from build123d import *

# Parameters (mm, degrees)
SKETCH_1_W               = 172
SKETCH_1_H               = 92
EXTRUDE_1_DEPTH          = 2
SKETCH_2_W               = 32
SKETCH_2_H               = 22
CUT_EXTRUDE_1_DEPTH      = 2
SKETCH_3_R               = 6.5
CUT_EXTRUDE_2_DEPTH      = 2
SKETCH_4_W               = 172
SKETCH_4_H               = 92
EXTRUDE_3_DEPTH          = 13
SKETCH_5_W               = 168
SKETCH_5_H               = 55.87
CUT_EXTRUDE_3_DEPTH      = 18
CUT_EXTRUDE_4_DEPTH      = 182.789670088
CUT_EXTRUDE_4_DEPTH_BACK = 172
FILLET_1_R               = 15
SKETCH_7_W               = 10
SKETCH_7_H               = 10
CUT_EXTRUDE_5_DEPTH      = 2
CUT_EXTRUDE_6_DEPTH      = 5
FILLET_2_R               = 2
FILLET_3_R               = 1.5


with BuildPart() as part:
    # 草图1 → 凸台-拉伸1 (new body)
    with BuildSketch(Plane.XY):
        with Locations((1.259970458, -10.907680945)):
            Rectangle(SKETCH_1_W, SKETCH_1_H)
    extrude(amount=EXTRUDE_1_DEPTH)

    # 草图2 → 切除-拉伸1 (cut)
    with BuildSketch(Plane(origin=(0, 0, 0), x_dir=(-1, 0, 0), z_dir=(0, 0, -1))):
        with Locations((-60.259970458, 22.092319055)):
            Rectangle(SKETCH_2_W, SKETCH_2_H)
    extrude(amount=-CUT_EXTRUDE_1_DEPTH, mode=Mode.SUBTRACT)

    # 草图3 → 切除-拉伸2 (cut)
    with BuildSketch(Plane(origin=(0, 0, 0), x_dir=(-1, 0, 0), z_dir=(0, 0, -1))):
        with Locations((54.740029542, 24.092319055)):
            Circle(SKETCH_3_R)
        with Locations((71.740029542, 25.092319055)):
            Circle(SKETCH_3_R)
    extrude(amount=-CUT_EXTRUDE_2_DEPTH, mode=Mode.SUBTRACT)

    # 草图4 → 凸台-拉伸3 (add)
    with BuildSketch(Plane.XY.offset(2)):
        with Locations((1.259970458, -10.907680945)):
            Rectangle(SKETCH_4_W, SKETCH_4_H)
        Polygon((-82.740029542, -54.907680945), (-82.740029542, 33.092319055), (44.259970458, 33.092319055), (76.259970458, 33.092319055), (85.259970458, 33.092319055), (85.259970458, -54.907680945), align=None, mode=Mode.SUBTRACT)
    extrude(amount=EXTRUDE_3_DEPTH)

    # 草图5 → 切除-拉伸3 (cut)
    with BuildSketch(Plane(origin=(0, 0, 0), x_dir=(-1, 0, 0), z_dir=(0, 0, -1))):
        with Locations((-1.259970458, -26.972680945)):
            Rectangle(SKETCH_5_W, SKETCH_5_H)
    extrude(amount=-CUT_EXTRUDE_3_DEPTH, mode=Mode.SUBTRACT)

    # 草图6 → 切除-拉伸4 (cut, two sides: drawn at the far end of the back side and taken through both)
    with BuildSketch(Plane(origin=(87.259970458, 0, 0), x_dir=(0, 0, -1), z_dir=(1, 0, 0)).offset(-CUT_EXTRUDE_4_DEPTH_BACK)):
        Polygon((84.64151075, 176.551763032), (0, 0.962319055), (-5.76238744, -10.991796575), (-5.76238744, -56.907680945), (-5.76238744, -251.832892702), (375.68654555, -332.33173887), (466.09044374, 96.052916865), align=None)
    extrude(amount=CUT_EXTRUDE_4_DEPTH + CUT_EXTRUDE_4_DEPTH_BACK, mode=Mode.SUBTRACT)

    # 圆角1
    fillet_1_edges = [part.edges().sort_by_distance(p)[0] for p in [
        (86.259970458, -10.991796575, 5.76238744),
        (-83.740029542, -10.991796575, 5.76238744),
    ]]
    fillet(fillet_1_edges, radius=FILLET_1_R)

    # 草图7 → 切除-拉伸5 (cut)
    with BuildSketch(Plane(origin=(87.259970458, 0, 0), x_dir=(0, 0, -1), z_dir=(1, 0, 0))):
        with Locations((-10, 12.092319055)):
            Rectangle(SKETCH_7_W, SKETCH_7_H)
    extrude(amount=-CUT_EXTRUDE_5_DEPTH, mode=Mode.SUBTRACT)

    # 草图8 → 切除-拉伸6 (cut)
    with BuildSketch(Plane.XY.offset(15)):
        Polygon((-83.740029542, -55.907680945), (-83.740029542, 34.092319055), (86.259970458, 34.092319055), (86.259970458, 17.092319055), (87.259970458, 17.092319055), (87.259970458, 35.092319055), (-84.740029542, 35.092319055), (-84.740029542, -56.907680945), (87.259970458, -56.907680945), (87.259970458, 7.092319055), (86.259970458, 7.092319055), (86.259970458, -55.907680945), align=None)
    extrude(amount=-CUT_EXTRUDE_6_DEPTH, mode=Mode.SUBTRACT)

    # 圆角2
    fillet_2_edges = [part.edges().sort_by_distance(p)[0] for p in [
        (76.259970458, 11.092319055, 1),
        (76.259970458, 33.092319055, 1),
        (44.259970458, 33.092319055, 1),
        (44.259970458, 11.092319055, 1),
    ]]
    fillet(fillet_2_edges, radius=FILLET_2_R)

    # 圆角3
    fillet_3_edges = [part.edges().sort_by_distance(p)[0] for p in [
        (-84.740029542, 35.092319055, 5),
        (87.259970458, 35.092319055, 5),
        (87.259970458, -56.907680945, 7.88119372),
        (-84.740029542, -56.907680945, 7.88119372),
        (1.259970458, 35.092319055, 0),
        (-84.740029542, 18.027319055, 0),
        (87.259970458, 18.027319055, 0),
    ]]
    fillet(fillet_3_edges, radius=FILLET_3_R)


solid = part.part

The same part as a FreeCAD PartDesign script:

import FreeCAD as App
import Part
import Sketcher

V = App.Vector


def edges_at(feature, points):
    """Names of the edges that pass closest to the given points."""
    edges = feature.Shape.Edges
    near = lambda p: min(range(len(edges)), key=lambda i: edges[i].distToShape(Part.Vertex(*p))[0])
    return sorted({f"Edge{near(p) + 1}" for p in points})

doc = App.newDocument("Part")
params = doc.addObject("Spreadsheet::Sheet", "Params")
for row, (alias, value) in enumerate([
    ("sketch1_width", "172 mm"),
    ("sketch1_height", "92 mm"),
    ("pad1_length", "2 mm"),
    ("sketch2_width", "32 mm"),
    ("sketch2_height", "22 mm"),
    ("pocket1_length", "2 mm"),
    ("sketch3_diameter", "13 mm"),
    ("pocket2_length", "2 mm"),
    ("sketch4_width", "172 mm"),
    ("sketch4_width2", "168 mm"),
    ("sketch4_height", "92 mm"),
    ("sketch4_height2", "88 mm"),
    ("pad2_length", "13 mm"),
    ("sketch5_width", "168 mm"),
    ("sketch5_height", "55.87 mm"),
    ("pocket3_length", "18 mm"),
    ("fillet_radius", "15 mm"),
    ("sketch7_width", "10 mm"),
    ("pocket5_length", "2 mm"),
    ("sketch8_width", "170 mm"),
    ("sketch8_width2", "1 mm"),
    ("sketch8_width3", "172 mm"),
    ("sketch8_height", "90 mm"),
    ("sketch8_height2", "17 mm"),
    ("pocket6_length", "5 mm"),
    ("fillet2_radius", "2 mm"),
    ("fillet3_radius", "1.5 mm"),
], start=1):
    params.set(f"A{row}", alias)
    params.set(f"B{row}", "=" + value)
    params.setAlias(f"B{row}", alias)

body = doc.addObject("PartDesign::Body", "Body")

# Sketch on XY plane
sketch1 = body.newObject("Sketcher::SketchObject", "Sketch")
sketch1.AttachmentSupport = (doc.getObject("XY_Plane"), [""])
sketch1.MapMode = "FlatFace"
sketch1.addGeometry(Part.LineSegment(V(-85, 35, 0), V(-85, -57, 0)), False)
sketch1.addGeometry(Part.LineSegment(V(-85, -57, 0), V(87, -57, 0)), False)
sketch1.addGeometry(Part.LineSegment(V(87, -57, 0), V(87, 35, 0)), False)
sketch1.addGeometry(Part.LineSegment(V(87, 35, 0), V(-85, 35, 0)), False)
sketch1.addConstraint(Sketcher.Constraint("Coincident", 0, 2, 1, 1))
sketch1.addConstraint(Sketcher.Constraint("Coincident", 1, 2, 2, 1))
sketch1.addConstraint(Sketcher.Constraint("Coincident", 2, 2, 3, 1))
sketch1.addConstraint(Sketcher.Constraint("Coincident", 3, 2, 0, 1))
sketch1.addConstraint(Sketcher.Constraint("Vertical", 0))
sketch1.addConstraint(Sketcher.Constraint("Horizontal", 1))
sketch1.addConstraint(Sketcher.Constraint("Vertical", 2))
sketch1.addConstraint(Sketcher.Constraint("Horizontal", 3))
sketch1.addConstraint(Sketcher.Constraint("DistanceX", 1, 1, 1, 2, 172.0))
sketch1.addConstraint(Sketcher.Constraint("DistanceY", 0, 2, 0, 1, 92.0))
sketch1.addConstraint(Sketcher.Constraint("DistanceX", 0, 2, -1, 1, 84.74003))
sketch1.addConstraint(Sketcher.Constraint("DistanceY", 0, 2, -1, 1, 56.907681))
sketch1.setExpression("Constraints[8]", "Params.sketch1_width")
sketch1.setExpression("Constraints[9]", "Params.sketch1_height")
pad1 = body.newObject("PartDesign::Pad", "Pad")
pad1.Profile = sketch1
pad1.setExpression("Length", "Params.pad1_length")

# Sketch on XY plane
sketch2 = body.newObject("Sketcher::SketchObject", "Sketch001")
sketch2.AttachmentSupport = (doc.getObject("XY_Plane"), [""])
sketch2.MapMode = "FlatFace"
sketch2.addGeometry(Part.LineSegment(V(76, 33, 0), V(76, 11, 0)), False)
sketch2.addGeometry(Part.LineSegment(V(76, 11, 0), V(44, 11, 0)), False)
sketch2.addGeometry(Part.LineSegment(V(44, 11, 0), V(44, 33, 0)), False)
sketch2.addGeometry(Part.LineSegment(V(44, 33, 0), V(76, 33, 0)), False)
sketch2.addConstraint(Sketcher.Constraint("Coincident", 0, 2, 1, 1))
sketch2.addConstraint(Sketcher.Constraint("Coincident", 1, 2, 2, 1))
sketch2.addConstraint(Sketcher.Constraint("Coincident", 2, 2, 3, 1))
sketch2.addConstraint(Sketcher.Constraint("Coincident", 3, 2, 0, 1))
sketch2.addConstraint(Sketcher.Constraint("Vertical", 0))
sketch2.addConstraint(Sketcher.Constraint("Horizontal", 1))
sketch2.addConstraint(Sketcher.Constraint("Vertical", 2))
sketch2.addConstraint(Sketcher.Constraint("Horizontal", 3))
sketch2.addConstraint(Sketcher.Constraint("DistanceX", 1, 2, 1, 1, 32.0))
sketch2.addConstraint(Sketcher.Constraint("DistanceY", 0, 2, 0, 1, 22.0))
sketch2.addConstraint(Sketcher.Constraint("DistanceX", -1, 1, 0, 2, 76.25997))
sketch2.addConstraint(Sketcher.Constraint("DistanceY", -1, 1, 0, 2, 11.092319))
sketch2.setExpression("Constraints[8]", "Params.sketch2_width")
sketch2.setExpression("Constraints[9]", "Params.sketch2_height")
pocket1 = body.newObject("PartDesign::Pocket", "Pocket")
pocket1.Profile = sketch2
pocket1.setExpression("Length", "Params.pocket1_length")
pocket1.Reversed = True

# Sketch on XY plane
sketch3 = body.newObject("Sketcher::SketchObject", "Sketch002")
sketch3.AttachmentSupport = (doc.getObject("XY_Plane"), [""])
sketch3.MapMode = "FlatFace"
sketch3.addGeometry(Part.Circle(V(-55, 24, 0), V(0, 0, 1), 6), False)
sketch3.addGeometry(Part.Circle(V(-72, 25, 0), V(0, 0, 1), 6), False)
sketch3.addConstraint(Sketcher.Constraint("Equal", 0, 1))
sketch3.addConstraint(Sketcher.Constraint("Diameter", 0, 13.0))
sketch3.addConstraint(Sketcher.Constraint("DistanceX", 1, 3, 0, 3, 17.0))
sketch3.addConstraint(Sketcher.Constraint("DistanceY", 0, 3, 1, 3, 1.0))
sketch3.addConstraint(Sketcher.Constraint("DistanceX", 0, 3, -1, 1, 54.74003))
sketch3.addConstraint(Sketcher.Constraint("DistanceY", -1, 1, 0, 3, 24.092319))
sketch3.setExpression("Constraints[1]", "Params.sketch3_diameter")
pocket2 = body.newObject("PartDesign::Pocket", "Pocket001")
pocket2.Profile = sketch3
pocket2.setExpression("Length", "Params.pocket2_length")
pocket2.Reversed = True

# Sketch on XY plane
sketch4 = body.newObject("Sketcher::SketchObject", "Sketch003")
sketch4.AttachmentSupport = (doc.getObject("XY_Plane"), [""])
sketch4.MapMode = "FlatFace"
sketch4.AttachmentOffset = App.Placement(V(0, 0, 2), App.Rotation())
sketch4.addGeometry(Part.LineSegment(V(-85, 35, 0), V(-85, -57, 0)), False)
sketch4.addGeometry(Part.LineSegment(V(-85, -57, 0), V(87, -57, 0)), False)
sketch4.addGeometry(Part.LineSegment(V(87, -57, 0), V(87, 35, 0)), False)
sketch4.addGeometry(Part.LineSegment(V(87, 35, 0), V(-85, 35, 0)), False)
sketch4.addGeometry(Part.LineSegment(V(85, -55, 0), V(-83, -55, 0)), False)
sketch4.addGeometry(Part.LineSegment(V(-83, -55, 0), V(-83, 33, 0)), False)
sketch4.addGeometry(Part.LineSegment(V(-83, 33, 0), V(85, 33, 0)), False)
sketch4.addGeometry(Part.LineSegment(V(85, 33, 0), V(85, -55, 0)), False)
sketch4.addConstraint(Sketcher.Constraint("Coincident", 0, 2, 1, 1))
sketch4.addConstraint(Sketcher.Constraint("Coincident", 1, 2, 2, 1))
sketch4.addConstraint(Sketcher.Constraint("Coincident", 2, 2, 3, 1))
sketch4.addConstraint(Sketcher.Constraint("Coincident", 3, 2, 0, 1))
sketch4.addConstraint(Sketcher.Constraint("Coincident", 4, 2, 5, 1))
sketch4.addConstraint(Sketcher.Constraint("Coincident", 5, 2, 6, 1))
sketch4.addConstraint(Sketcher.Constraint("Coincident", 6, 2, 7, 1))
sketch4.addConstraint(Sketcher.Constraint("Coincident", 7, 2, 4, 1))
sketch4.addConstraint(Sketcher.Constraint("Vertical", 0))
sketch4.addConstraint(Sketcher.Constraint("Horizontal", 1))
sketch4.addConstraint(Sketcher.Constraint("Vertical", 2))
sketch4.addConstraint(Sketcher.Constraint("Horizontal", 3))
sketch4.addConstraint(Sketcher.Constraint("Horizontal", 4))
sketch4.addConstraint(Sketcher.Constraint("Vertical", 5))
sketch4.addConstraint(Sketcher.Constraint("Horizontal", 6))
sketch4.addConstraint(Sketcher.Constraint("Vertical", 7))
sketch4.addConstraint(Sketcher.Constraint("DistanceX", 1, 1, 1, 2, 172.0))
sketch4.addConstraint(Sketcher.Constraint("DistanceX", 4, 2, 4, 1, 168.0))
sketch4.addConstraint(Sketcher.Constraint("DistanceY", 0, 2, 0, 1, 92.0))
sketch4.addConstraint(Sketcher.Constraint("DistanceY", 5, 1, 5, 2, 88.0))
sketch4.addConstraint(Sketcher.Constraint("DistanceX", 0, 2, 4, 2, 2.0))
sketch4.addConstraint(Sketcher.Constraint("DistanceY", 0, 2, 4, 2, 2.0))
sketch4.addConstraint(Sketcher.Constraint("DistanceX", 0, 2, -1, 1, 84.74003))
sketch4.addConstraint(Sketcher.Constraint("DistanceY", 0, 2, -1, 1, 56.907681))
sketch4.setExpression("Constraints[16]", "Params.sketch4_width")
sketch4.setExpression("Constraints[17]", "Params.sketch4_width2")
sketch4.setExpression("Constraints[18]", "Params.sketch4_height")
sketch4.setExpression("Constraints[19]", "Params.sketch4_height2")
pad2 = body.newObject("PartDesign::Pad", "Pad001")
pad2.Profile = sketch4
pad2.setExpression("Length", "Params.pad2_length")

# Sketch on XY plane
sketch5 = body.newObject("Sketcher::SketchObject", "Sketch004")
sketch5.AttachmentSupport = (doc.getObject("XY_Plane"), [""])
sketch5.MapMode = "FlatFace"
sketch5.addGeometry(Part.LineSegment(V(85, 1, 0), V(85, -55, 0)), False)
sketch5.addGeometry(Part.LineSegment(V(85, -55, 0), V(-83, -55, 0)), False)
sketch5.addGeometry(Part.LineSegment(V(-83, -55, 0), V(-83, 1, 0)), False)
sketch5.addGeometry(Part.LineSegment(V(-83, 1, 0), V(85, 1, 0)), False)
sketch5.addConstraint(Sketcher.Constraint("Coincident", 0, 2, 1, 1))
sketch5.addConstraint(Sketcher.Constraint("Coincident", 1, 2, 2, 1))
sketch5.addConstraint(Sketcher.Constraint("Coincident", 2, 2, 3, 1))
sketch5.addConstraint(Sketcher.Constraint("Coincident", 3, 2, 0, 1))
sketch5.addConstraint(Sketcher.Constraint("Vertical", 0))
sketch5.addConstraint(Sketcher.Constraint("Horizontal", 1))
sketch5.addConstraint(Sketcher.Constraint("Vertical", 2))
sketch5.addConstraint(Sketcher.Constraint("Horizontal", 3))
sketch5.addConstraint(Sketcher.Constraint("DistanceX", 1, 2, 1, 1, 168.0))
sketch5.addConstraint(Sketcher.Constraint("DistanceY", 0, 2, 0, 1, 55.87))
sketch5.addConstraint(Sketcher.Constraint("DistanceX", -1, 1, 0, 2, 85.25997))
sketch5.addConstraint(Sketcher.Constraint("DistanceY", 0, 2, -1, 1, 54.907681))
sketch5.setExpression("Constraints[8]", "Params.sketch5_width")
sketch5.setExpression("Constraints[9]", "Params.sketch5_height")
pocket3 = body.newObject("PartDesign::Pocket", "Pocket002")
pocket3.Profile = sketch5
pocket3.setExpression("Length", "Params.pocket3_length")
pocket3.Reversed = True

# Sketch on YZ plane
sketch6 = body.newObject("Sketcher::SketchObject", "Sketch005")
sketch6.AttachmentSupport = (doc.getObject("YZ_Plane"), [""])
sketch6.MapMode = "FlatFace"
sketch6.AttachmentOffset = App.Placement(V(0, 0, 87.25997), App.Rotation())
sketch6.addGeometry(Part.LineSegment(V(177, -85, 0), V(1, 0, 0)), False)
sketch6.addGeometry(Part.LineSegment(V(1, 0, 0), V(-11, 6, 0)), False)
sketch6.addGeometry(Part.LineSegment(V(-11, 6, 0), V(-252, 6, 0)), False)
sketch6.addGeometry(Part.LineSegment(V(-252, 6, 0), V(-332, -376, 0)), False)
sketch6.addGeometry(Part.LineSegment(V(-332, -376, 0), V(96, -466, 0)), False)
sketch6.addGeometry(Part.LineSegment(V(96, -466, 0), V(177, -85, 0)), False)
sketch6.addConstraint(Sketcher.Constraint("Coincident", 0, 2, 1, 1))
sketch6.addConstraint(Sketcher.Constraint("Coincident", 1, 2, 2, 1))
sketch6.addConstraint(Sketcher.Constraint("Coincident", 2, 2, 3, 1))
sketch6.addConstraint(Sketcher.Constraint("Coincident", 3, 2, 4, 1))
sketch6.addConstraint(Sketcher.Constraint("Coincident", 4, 2, 5, 1))
sketch6.addConstraint(Sketcher.Constraint("Coincident", 5, 2, 0, 1))
sketch6.addConstraint(Sketcher.Constraint("Horizontal", 2))
sketch6.addConstraint(Sketcher.Constraint("PointOnObject", 0, 2, -1))
sketch6.addConstraint(Sketcher.Constraint("Parallel", 0, 1))
sketch6.addConstraint(Sketcher.Constraint("Perpendicular", 3, 4))
sketch6.addConstraint(Sketcher.Constraint("Perpendicular", 4, 5))
sketch6.addConstraint(Sketcher.Constraint("Equal", 3, 5))
sketch6.addConstraint(Sketcher.Constraint("DistanceY", 4, 2, 3, 2, 90.403898))
sketch6.addConstraint(Sketcher.Constraint("DistanceX", 3, 2, 5, 2, 508.883502))
sketch6.addConstraint(Sketcher.Constraint("Distance", 0, 194.925212))
sketch6.addConstraint(Sketcher.Constraint("DistanceX", 2, 2, 2, 1, 240.841096))
sketch6.addConstraint(Sketcher.Constraint("DistanceX", -1, 1, 0, 2, 0.962319))
sketch6.addConstraint(Sketcher.Constraint("DistanceX", 3, 2, -1, 1, 332.331739))
pocket4 = body.newObject("PartDesign::Pocket", "Pocket003")
pocket4.Profile = sketch6
pocket4.Type = "ThroughAll"
pocket4.Midplane = True
doc.recompute()

fillet = body.newObject("PartDesign::Fillet", "Fillet")
fillet.Base = (pocket4, edges_at(pocket4, [(86.26, -10.992, 5.762), (-83.74, -10.992, 5.762)]))
fillet.setExpression("Radius", "Params.fillet_radius")

# Sketch on YZ plane
sketch7 = body.newObject("Sketcher::SketchObject", "Sketch006")
sketch7.AttachmentSupport = (doc.getObject("YZ_Plane"), [""])
sketch7.MapMode = "FlatFace"
sketch7.AttachmentOffset = App.Placement(V(0, 0, 87.25997), App.Rotation())
sketch7.addGeometry(Part.LineSegment(V(17, 15, 0), V(7, 15, 0)), False)
sketch7.addGeometry(Part.LineSegment(V(7, 15, 0), V(7, 5, 0)), False)
sketch7.addGeometry(Part.LineSegment(V(7, 5, 0), V(17, 5, 0)), False)
sketch7.addGeometry(Part.LineSegment(V(17, 5, 0), V(17, 15, 0)), False)
sketch7.addConstraint(Sketcher.Constraint("Coincident", 0, 2, 1, 1))
sketch7.addConstraint(Sketcher.Constraint("Coincident", 1, 2, 2, 1))
sketch7.addConstraint(Sketcher.Constraint("Coincident", 2, 2, 3, 1))
sketch7.addConstraint(Sketcher.Constraint("Coincident", 3, 2, 0, 1))
sketch7.addConstraint(Sketcher.Constraint("Horizontal", 0))
sketch7.addConstraint(Sketcher.Constraint("Vertical", 1))
sketch7.addConstraint(Sketcher.Constraint("Horizontal", 2))
sketch7.addConstraint(Sketcher.Constraint("Vertical", 3))
sketch7.addConstraint(Sketcher.Constraint("Equal", 2, 1))
sketch7.addConstraint(Sketcher.Constraint("DistanceX", 0, 2, 0, 1, 10.0))
sketch7.addConstraint(Sketcher.Constraint("DistanceY", -1, 1, 0, 2, 15.0))
sketch7.addConstraint(Sketcher.Constraint("DistanceX", -1, 1, 0, 2, 7.092319))
sketch7.setExpression("Constraints[9]", "Params.sketch7_width")
pocket5 = body.newObject("PartDesign::Pocket", "Pocket004")
pocket5.Profile = sketch7
pocket5.setExpression("Length", "Params.pocket5_length")

# Sketch on XY plane
sketch8 = body.newObject("Sketcher::SketchObject", "Sketch007")
sketch8.AttachmentSupport = (doc.getObject("XY_Plane"), [""])
sketch8.MapMode = "FlatFace"
sketch8.AttachmentOffset = App.Placement(V(0, 0, 15), App.Rotation())
sketch8.addGeometry(Part.LineSegment(V(-83.7, -55.9, 0), V(-83.7, 34.1, 0)), False)
sketch8.addGeometry(Part.LineSegment(V(-83.7, 34.1, 0), V(86.3, 34.1, 0)), False)
sketch8.addGeometry(Part.LineSegment(V(86.3, 34.1, 0), V(86.3, 17.1, 0)), False)
sketch8.addGeometry(Part.LineSegment(V(86.3, 17.1, 0), V(87.3, 17.1, 0)), False)
sketch8.addGeometry(Part.LineSegment(V(87.3, 17.1, 0), V(87.3, 35.1, 0)), False)
sketch8.addGeometry(Part.LineSegment(V(87.3, 35.1, 0), V(-84.7, 35.1, 0)), False)
sketch8.addGeometry(Part.LineSegment(V(-84.7, 35.1, 0), V(-84.7, -56.9, 0)), False)
sketch8.addGeometry(Part.LineSegment(V(-84.7, -56.9, 0), V(87.3, -56.9, 0)), False)
sketch8.addGeometry(Part.LineSegment(V(87.3, -56.9, 0), V(87.3, 7.1, 0)), False)
sketch8.addGeometry(Part.LineSegment(V(87.3, 7.1, 0), V(86.3, 7.1, 0)), False)
sketch8.addGeometry(Part.LineSegment(V(86.3, 7.1, 0), V(86.3, -55.9, 0)), False)
sketch8.addGeometry(Part.LineSegment(V(86.3, -55.9, 0), V(-83.7, -55.9, 0)), False)
sketch8.addConstraint(Sketcher.Constraint("Coincident", 0, 2, 1, 1))
sketch8.addConstraint(Sketcher.Constraint("Coincident", 1, 2, 2, 1))
sketch8.addConstraint(Sketcher.Constraint("Coincident", 2, 2, 3, 1))
sketch8.addConstraint(Sketcher.Constraint("Coincident", 3, 2, 4, 1))
sketch8.addConstraint(Sketcher.Constraint("Coincident", 4, 2, 5, 1))
sketch8.addConstraint(Sketcher.Constraint("Coincident", 5, 2, 6, 1))
sketch8.addConstraint(Sketcher.Constraint("Coincident", 6, 2, 7, 1))
sketch8.addConstraint(Sketcher.Constraint("Coincident", 7, 2, 8, 1))
sketch8.addConstraint(Sketcher.Constraint("Coincident", 8, 2, 9, 1))
sketch8.addConstraint(Sketcher.Constraint("Coincident", 9, 2, 10, 1))
sketch8.addConstraint(Sketcher.Constraint("Coincident", 10, 2, 11, 1))
sketch8.addConstraint(Sketcher.Constraint("Coincident", 11, 2, 0, 1))
sketch8.addConstraint(Sketcher.Constraint("Vertical", 0))
sketch8.addConstraint(Sketcher.Constraint("Horizontal", 1))
sketch8.addConstraint(Sketcher.Constraint("Vertical", 2))
sketch8.addConstraint(Sketcher.Constraint("Horizontal", 3))
sketch8.addConstraint(Sketcher.Constraint("Vertical", 4))
sketch8.addConstraint(Sketcher.Constraint("Horizontal", 5))
sketch8.addConstraint(Sketcher.Constraint("Vertical", 6))
sketch8.addConstraint(Sketcher.Constraint("Horizontal", 7))
sketch8.addConstraint(Sketcher.Constraint("Vertical", 8))
sketch8.addConstraint(Sketcher.Constraint("Horizontal", 9))
sketch8.addConstraint(Sketcher.Constraint("Vertical", 10))
sketch8.addConstraint(Sketcher.Constraint("Horizontal", 11))
sketch8.addConstraint(Sketcher.Constraint("Vertical", 4, 2, 7, 2))
sketch8.addConstraint(Sketcher.Constraint("Vertical", 2, 2, 9, 2))
sketch8.addConstraint(Sketcher.Constraint("DistanceX", 1, 1, 1, 2, 170.0))
sketch8.addConstraint(Sketcher.Constraint("DistanceX", 3, 1, 3, 2, 1.0))
sketch8.addConstraint(Sketcher.Constraint("DistanceX", 5, 2, 5, 1, 172.0))
sketch8.addConstraint(Sketcher.Constraint("DistanceY", 0, 1, 0, 2, 90.0))
sketch8.addConstraint(Sketcher.Constraint("DistanceY", 2, 2, 2, 1, 17.0))
sketch8.addConstraint(Sketcher.Constraint("DistanceY", 4, 1, 4, 2, 18.0))
sketch8.addConstraint(Sketcher.Constraint("DistanceY", 6, 2, 6, 1, 92.0))
sketch8.addConstraint(Sketcher.Constraint("DistanceY", 8, 1, 8, 2, 64.0))
sketch8.addConstraint(Sketcher.Constraint("DistanceX", 0, 2, -1, 1, 83.74003))
sketch8.addConstraint(Sketcher.Constraint("DistanceY", -1, 1, 0, 2, 34.092319))
sketch8.setExpression("Constraints[26]", "Params.sketch8_width")
sketch8.setExpression("Constraints[27]", "Params.sketch8_width2")
sketch8.setExpression("Constraints[28]", "Params.sketch8_width3")
sketch8.setExpression("Constraints[29]", "Params.sketch8_height")
sketch8.setExpression("Constraints[30]", "Params.sketch8_height2")
pocket6 = body.newObject("PartDesign::Pocket", "Pocket005")
pocket6.Profile = sketch8
pocket6.setExpression("Length", "Params.pocket6_length")
doc.recompute()

fillet2 = body.newObject("PartDesign::Fillet", "Fillet001")
fillet2.Base = (pocket6, edges_at(pocket6, [
    (76.26, 11.092, 1),
    (76.26, 33.092, 1),
    (44.26, 33.092, 1),
    (44.26, 11.092, 1),
]))
fillet2.setExpression("Radius", "Params.fillet2_radius")
doc.recompute()

fillet3 = body.newObject("PartDesign::Fillet", "Fillet002")
fillet3.Base = (fillet2, edges_at(fillet2, [
    (-84.74, 35.092, 5),
    (87.26, 35.092, 5),
    (87.26, -56.908, 7.881),
    (-84.74, -56.908, 7.881),
    (1.26, 35.092, 0),
    (-84.74, 18.027, 0),
    (87.26, 18.027, 0),
]))
fillet3.setExpression("Radius", "Params.fillet3_radius")

doc.recompute()
